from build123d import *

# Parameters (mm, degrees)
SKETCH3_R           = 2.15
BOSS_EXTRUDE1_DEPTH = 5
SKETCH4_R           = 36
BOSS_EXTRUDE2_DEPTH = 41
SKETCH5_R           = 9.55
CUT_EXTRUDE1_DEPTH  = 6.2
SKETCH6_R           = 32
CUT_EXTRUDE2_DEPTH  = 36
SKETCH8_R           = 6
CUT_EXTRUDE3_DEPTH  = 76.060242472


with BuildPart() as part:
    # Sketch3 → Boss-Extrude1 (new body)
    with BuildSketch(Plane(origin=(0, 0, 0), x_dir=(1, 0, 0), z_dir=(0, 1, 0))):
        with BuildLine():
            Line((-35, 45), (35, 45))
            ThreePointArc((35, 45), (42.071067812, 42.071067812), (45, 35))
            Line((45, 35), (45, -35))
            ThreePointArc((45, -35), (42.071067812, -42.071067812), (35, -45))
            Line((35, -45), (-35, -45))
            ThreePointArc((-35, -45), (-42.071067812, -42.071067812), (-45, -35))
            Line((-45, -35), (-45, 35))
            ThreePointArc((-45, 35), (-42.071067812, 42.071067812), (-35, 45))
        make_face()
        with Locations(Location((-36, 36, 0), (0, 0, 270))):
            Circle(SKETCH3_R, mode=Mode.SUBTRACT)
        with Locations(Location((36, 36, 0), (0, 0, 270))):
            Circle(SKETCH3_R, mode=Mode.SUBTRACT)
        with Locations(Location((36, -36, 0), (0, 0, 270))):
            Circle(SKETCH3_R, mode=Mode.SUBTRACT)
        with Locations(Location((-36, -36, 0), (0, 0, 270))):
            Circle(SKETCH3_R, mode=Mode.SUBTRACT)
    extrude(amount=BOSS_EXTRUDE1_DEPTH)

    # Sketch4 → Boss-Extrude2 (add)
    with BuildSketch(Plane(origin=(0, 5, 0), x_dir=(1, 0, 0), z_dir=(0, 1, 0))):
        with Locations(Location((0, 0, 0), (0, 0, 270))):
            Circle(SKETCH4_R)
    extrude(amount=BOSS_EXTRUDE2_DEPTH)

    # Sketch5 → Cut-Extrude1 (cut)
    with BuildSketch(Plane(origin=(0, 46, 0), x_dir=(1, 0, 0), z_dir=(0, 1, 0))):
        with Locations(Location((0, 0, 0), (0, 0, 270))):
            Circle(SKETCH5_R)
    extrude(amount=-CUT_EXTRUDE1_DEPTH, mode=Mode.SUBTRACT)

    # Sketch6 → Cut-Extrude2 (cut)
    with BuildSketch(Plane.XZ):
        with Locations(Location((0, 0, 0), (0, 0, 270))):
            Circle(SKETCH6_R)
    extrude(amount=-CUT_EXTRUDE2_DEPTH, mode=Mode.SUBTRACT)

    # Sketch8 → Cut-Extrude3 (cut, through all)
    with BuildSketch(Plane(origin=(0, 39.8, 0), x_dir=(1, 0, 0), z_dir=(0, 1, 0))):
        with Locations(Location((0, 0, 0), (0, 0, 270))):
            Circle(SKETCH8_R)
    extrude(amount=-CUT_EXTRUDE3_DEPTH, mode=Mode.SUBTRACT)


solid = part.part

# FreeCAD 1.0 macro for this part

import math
import FreeCAD as App
import Part
import Sketcher

doc = App.newDocument("Part")
body = doc.addObject("PartDesign::Body", "Body")

# Sketch on XZ plane
sketch1 = body.newObject("Sketcher::SketchObject", "Sketch")
sketch1.AttachmentSupport = (doc.getObject("XZ_Plane"), [""])
sketch1.MapMode = "FlatFace"
sketch1.addGeometry(Part.LineSegment(App.Vector(35, -45, 0), App.Vector(-35, -45, 0)), False)
sketch1.addGeometry(Part.ArcOfCircle(Part.Circle(App.Vector(-35, -35, 0), App.Vector(0, 0, 1), 10), math.radians(180), math.radians(270)), False)
sketch1.addGeometry(Part.LineSegment(App.Vector(-45, -35, 0), App.Vector(-45, 35, 0)), False)
sketch1.addGeometry(Part.ArcOfCircle(Part.Circle(App.Vector(-35, 35, 0), App.Vector(0, 0, 1), 10), math.radians(90), math.radians(180)), False)
sketch1.addGeometry(Part.LineSegment(App.Vector(-35, 45, 0), App.Vector(35, 45, 0)), False)
sketch1.addGeometry(Part.ArcOfCircle(Part.Circle(App.Vector(35, 35, 0), App.Vector(0, 0, 1), 10), math.radians(0), math.radians(90)), False)
sketch1.addGeometry(Part.LineSegment(App.Vector(45, 35, 0), App.Vector(45, -35, 0)), False)
sketch1.addGeometry(Part.ArcOfCircle(Part.Circle(App.Vector(35, -35, 0), App.Vector(0, 0, 1), 10), math.radians(-90), math.radians(0)), False)
sketch1.addGeometry(Part.Circle(App.Vector(36, 36, 0), App.Vector(0, 0, 1), 2.1), False)
sketch1.addGeometry(Part.Circle(App.Vector(-36, 36, 0), App.Vector(0, 0, 1), 2.1), False)
sketch1.addGeometry(Part.Circle(App.Vector(36, -36, 0), App.Vector(0, 0, 1), 2.1), False)
sketch1.addGeometry(Part.Circle(App.Vector(-36, -36, 0), App.Vector(0, 0, 1), 2.1), False)
sketch1.addConstraint(Sketcher.Constraint("Tangent", 0, 2, 1, 2))
sketch1.addConstraint(Sketcher.Constraint("Tangent", 1, 1, 2, 1))
sketch1.addConstraint(Sketcher.Constraint("Tangent", 2, 2, 3, 2))
sketch1.addConstraint(Sketcher.Constraint("Tangent", 3, 1, 4, 1))
sketch1.addConstraint(Sketcher.Constraint("Tangent", 4, 2, 5, 2))
sketch1.addConstraint(Sketcher.Constraint("Tangent", 5, 1, 6, 1))
sketch1.addConstraint(Sketcher.Constraint("Tangent", 6, 2, 7, 2))
sketch1.addConstraint(Sketcher.Constraint("Tangent", 7, 1, 0, 1))
sketch1.addConstraint(Sketcher.Constraint("Horizontal", 0))
sketch1.addConstraint(Sketcher.Constraint("Vertical", 2))
sketch1.addConstraint(Sketcher.Constraint("Horizontal", 4))
sketch1.addConstraint(Sketcher.Constraint("Vertical", 6))
sketch1.addConstraint(Sketcher.Constraint("Equal", 1, 3))
sketch1.addConstraint(Sketcher.Constraint("Equal", 3, 5))
sketch1.addConstraint(Sketcher.Constraint("Equal", 5, 7))
sketch1.addConstraint(Sketcher.Constraint("Equal", 8, 9))
sketch1.addConstraint(Sketcher.Constraint("Equal", 9, 10))
sketch1.addConstraint(Sketcher.Constraint("Equal", 10, 11))
sketch1.addConstraint(Sketcher.Constraint("Symmetric", 1, 3, 5, 3, -1, 1))
sketch1.addConstraint(Sketcher.Constraint("Symmetric", 9, 3, 10, 3, -1, 1))
sketch1.addConstraint(Sketcher.Constraint("Symmetric", 8, 3, 11, 3, -1, 1))
sketch1.addConstraint(Sketcher.Constraint("Symmetric", 8, 3, 9, 3, -2))
sketch1.addConstraint(Sketcher.Constraint("Equal", 4, 2))
sketch1.addConstraint(Sketcher.Constraint("Radius", 1, 10.0))
sketch1.addConstraint(Sketcher.Constraint("Diameter", 8, 4.3))
sketch1.addConstraint(Sketcher.Constraint("DistanceX", 0, 2, 0, 1, 70.0))
sketch1.addConstraint(Sketcher.Constraint("DistanceX", -1, 1, 8, 3, 36.0))
sketch1.addConstraint(Sketcher.Constraint("DistanceY", -1, 1, 8, 3, 36.0))
pad1 = body.newObject("PartDesign::Pad", "Pad")
pad1.Profile = sketch1
pad1.Length = 5
pad1.Reversed = True

# Sketch on XZ plane
sketch2 = body.newObject("Sketcher::SketchObject", "Sketch001")
sketch2.AttachmentSupport = (doc.getObject("XZ_Plane"), [""])
sketch2.MapMode = "FlatFace"
sketch2.AttachmentOffset = App.Placement(App.Vector(0, 0, -5), App.Rotation())
sketch2.addGeometry(Part.Circle(App.Vector(0, 0, 0), App.Vector(0, 0, 1), 36), False)
sketch2.addConstraint(Sketcher.Constraint("Coincident", 0, 3, -1, 1))
sketch2.addConstraint(Sketcher.Constraint("Diameter", 0, 72.0))
pad2 = body.newObject("PartDesign::Pad", "Pad001")
pad2.Profile = sketch2
pad2.Length = 41
pad2.Reversed = True

# Sketch on XZ plane
sketch3 = body.newObject("Sketcher::SketchObject", "Sketch002")
sketch3.AttachmentSupport = (doc.getObject("XZ_Plane"), [""])
sketch3.MapMode = "FlatFace"
sketch3.AttachmentOffset = App.Placement(App.Vector(0, 0, -46), App.Rotation())
sketch3.addGeometry(Part.Circle(App.Vector(0, 0, 0), App.Vector(0, 0, 1), 10), False)
sketch3.addConstraint(Sketcher.Constraint("Coincident", 0, 3, -1, 1))
sketch3.addConstraint(Sketcher.Constraint("Diameter", 0, 19.1))
pocket1 = body.newObject("PartDesign::Pocket", "Pocket")
pocket1.Profile = sketch3
pocket1.Length = 6.2
pocket1.Reversed = True

# Sketch on XZ plane
sketch4 = body.newObject("Sketcher::SketchObject", "Sketch003")
sketch4.AttachmentSupport = (doc.getObject("XZ_Plane"), [""])
sketch4.MapMode = "FlatFace"
sketch4.addGeometry(Part.Circle(App.Vector(0, 0, 0), App.Vector(0, 0, 1), 32), False)
sketch4.addConstraint(Sketcher.Constraint("Coincident", 0, 3, -1, 1))
sketch4.addConstraint(Sketcher.Constraint("Diameter", 0, 64.0))
pocket2 = body.newObject("PartDesign::Pocket", "Pocket001")
pocket2.Profile = sketch4
pocket2.Length = 36

# Sketch on XZ plane
sketch5 = body.newObject("Sketcher::SketchObject", "Sketch004")
sketch5.AttachmentSupport = (doc.getObject("XZ_Plane"), [""])
sketch5.MapMode = "FlatFace"
sketch5.AttachmentOffset = App.Placement(App.Vector(0, 0, -39.8), App.Rotation())
sketch5.addGeometry(Part.Circle(App.Vector(0, 0, 0), App.Vector(0, 0, 1), 6), False)
sketch5.addConstraint(Sketcher.Constraint("Coincident", 0, 3, -1, 1))
sketch5.addConstraint(Sketcher.Constraint("Diameter", 0, 12.0))
pocket3 = body.newObject("PartDesign::Pocket", "Pocket002")
pocket3.Profile = sketch5
pocket3.Type = "ThroughAll"
pocket3.Reversed = True

doc.recompute()
